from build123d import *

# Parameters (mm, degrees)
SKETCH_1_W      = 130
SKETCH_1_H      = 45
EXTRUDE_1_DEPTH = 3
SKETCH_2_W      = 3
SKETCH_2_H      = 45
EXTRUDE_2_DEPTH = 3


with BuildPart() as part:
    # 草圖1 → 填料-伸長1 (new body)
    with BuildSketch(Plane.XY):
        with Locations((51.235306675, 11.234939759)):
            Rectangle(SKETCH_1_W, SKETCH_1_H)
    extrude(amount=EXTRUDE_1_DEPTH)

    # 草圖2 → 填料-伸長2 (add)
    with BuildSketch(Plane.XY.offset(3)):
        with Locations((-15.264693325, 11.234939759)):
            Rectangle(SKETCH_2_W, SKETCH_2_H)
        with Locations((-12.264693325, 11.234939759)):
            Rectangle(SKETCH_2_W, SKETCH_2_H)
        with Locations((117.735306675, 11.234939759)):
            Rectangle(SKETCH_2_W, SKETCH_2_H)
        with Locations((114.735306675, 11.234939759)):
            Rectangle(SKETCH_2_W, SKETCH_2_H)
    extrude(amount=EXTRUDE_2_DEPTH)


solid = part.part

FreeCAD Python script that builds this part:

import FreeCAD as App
import Part
import Sketcher
from FreeCAD import Vector

doc = App.newDocument("Part")
body = doc.addObject("PartDesign::Body", "Body")

# Sketch on XY plane
sketch1 = body.newObject("Sketcher::SketchObject", "Sketch")
sketch1.AttachmentSupport = (doc.getObject("XY_Plane"), [""])
sketch1.MapMode = "FlatFace"
sketch1.addGeometry([
    Part.LineSegment(Vector(-13.764693, 33.73494, 0), Vector(-13.764693, -11.26506, 0)),
    Part.LineSegment(Vector(-13.764693, -11.26506, 0), Vector(116.235307, -11.26506, 0)),
    Part.LineSegment(Vector(116.235307, -11.26506, 0), Vector(116.235307, 33.73494, 0)),
    Part.LineSegment(Vector(116.235307, 33.73494, 0), Vector(-13.764693, 33.73494, 0)),
], False)
sketch1.addConstraint([
    Sketcher.Constraint("Coincident", 0, 2, 1, 1),
    Sketcher.Constraint("Coincident", 1, 2, 2, 1),
    Sketcher.Constraint("Coincident", 2, 2, 3, 1),
    Sketcher.Constraint("Coincident", 3, 2, 0, 1),
    Sketcher.Constraint("Vertical", 0),
    Sketcher.Constraint("Horizontal", 1),
    Sketcher.Constraint("Vertical", 2),
    Sketcher.Constraint("Horizontal", 3),
    Sketcher.Constraint("DistanceX", 1, 1, 1, 2, 130.0),
    Sketcher.Constraint("DistanceY", 0, 2, 0, 1, 45.0),
    Sketcher.Constraint("DistanceY", 0, 2, -1, 1, 11.26506),
    Sketcher.Constraint("DistanceX", 0, 2, -1, 1, 13.764693),
])
pad1 = body.newObject("PartDesign::Pad", "Pad")
pad1.Profile = sketch1
pad1.Length = 3

# Sketch on XY plane
sketch2 = body.newObject("Sketcher::SketchObject", "Sketch001")
sketch2.AttachmentSupport = (doc.getObject("XY_Plane"), [""])
sketch2.MapMode = "FlatFace"
sketch2.AttachmentOffset = App.Placement(Vector(0, 0, 3), App.Rotation())
sketch2.addGeometry([
    Part.LineSegment(Vector(-16.764693, 33.73494, 0), Vector(-16.764693, -11.26506, 0)),  # 0
    Part.LineSegment(Vector(-16.764693, -11.26506, 0), Vector(-10.764693, -11.26506, 0)),  # 1
    Part.LineSegment(Vector(-10.764693, -11.26506, 0), Vector(-10.764693, 33.73494, 0)),  # 2
    Part.LineSegment(Vector(-10.764693, 33.73494, 0), Vector(-16.764693, 33.73494, 0)),  # 3
    Part.LineSegment(Vector(119.235307, -11.26506, 0), Vector(119.235307, 33.73494, 0)),  # 4
    Part.LineSegment(Vector(119.235307, 33.73494, 0), Vector(113.235307, 33.73494, 0)),  # 5
    Part.LineSegment(Vector(113.235307, 33.73494, 0), Vector(113.235307, -11.26506, 0)),  # 6
    Part.LineSegment(Vector(113.235307, -11.26506, 0), Vector(119.235307, -11.26506, 0)),  # 7
], False)
sketch2.addConstraint([
    Sketcher.Constraint("Coincident", 0, 2, 1, 1),
    Sketcher.Constraint("Coincident", 1, 2, 2, 1),
    Sketcher.Constraint("Coincident", 2, 2, 3, 1),
    Sketcher.Constraint("Coincident", 3, 2, 0, 1),
    Sketcher.Constraint("Coincident", 4, 2, 5, 1),
    Sketcher.Constraint("Coincident", 5, 2, 6, 1),
    Sketcher.Constraint("Coincident", 6, 2, 7, 1),
    Sketcher.Constraint("Coincident", 7, 2, 4, 1),
    Sketcher.Constraint("Vertical", 0),
    Sketcher.Constraint("Horizontal", 1),
    Sketcher.Constraint("Vertical", 2),
    Sketcher.Constraint("Horizontal", 3),
    Sketcher.Constraint("Vertical", 4),
    Sketcher.Constraint("Horizontal", 5),
    Sketcher.Constraint("Vertical", 6),
    Sketcher.Constraint("Horizontal", 7),
    Sketcher.Constraint("Horizontal", 3, 2, 4, 2),
    Sketcher.Constraint("Horizontal", 1, 2, 6, 2),
    Sketcher.Constraint("Equal", 3, 5),
    Sketcher.Constraint("DistanceX", 1, 1, 1, 2, 6.0),
    Sketcher.Constraint("DistanceY", 0, 2, 0, 1, 45.0),
    Sketcher.Constraint("DistanceX", 2, 2, 4, 2, 130.0),
    Sketcher.Constraint("DistanceY", 0, 2, -1, 1, 11.26506),
    Sketcher.Constraint("DistanceX", 0, 2, -1, 1, 16.764693),
])
pad2 = body.newObject("PartDesign::Pad", "Pad001")
pad2.Profile = sketch2
pad2.Length = 3

doc.recompute()
